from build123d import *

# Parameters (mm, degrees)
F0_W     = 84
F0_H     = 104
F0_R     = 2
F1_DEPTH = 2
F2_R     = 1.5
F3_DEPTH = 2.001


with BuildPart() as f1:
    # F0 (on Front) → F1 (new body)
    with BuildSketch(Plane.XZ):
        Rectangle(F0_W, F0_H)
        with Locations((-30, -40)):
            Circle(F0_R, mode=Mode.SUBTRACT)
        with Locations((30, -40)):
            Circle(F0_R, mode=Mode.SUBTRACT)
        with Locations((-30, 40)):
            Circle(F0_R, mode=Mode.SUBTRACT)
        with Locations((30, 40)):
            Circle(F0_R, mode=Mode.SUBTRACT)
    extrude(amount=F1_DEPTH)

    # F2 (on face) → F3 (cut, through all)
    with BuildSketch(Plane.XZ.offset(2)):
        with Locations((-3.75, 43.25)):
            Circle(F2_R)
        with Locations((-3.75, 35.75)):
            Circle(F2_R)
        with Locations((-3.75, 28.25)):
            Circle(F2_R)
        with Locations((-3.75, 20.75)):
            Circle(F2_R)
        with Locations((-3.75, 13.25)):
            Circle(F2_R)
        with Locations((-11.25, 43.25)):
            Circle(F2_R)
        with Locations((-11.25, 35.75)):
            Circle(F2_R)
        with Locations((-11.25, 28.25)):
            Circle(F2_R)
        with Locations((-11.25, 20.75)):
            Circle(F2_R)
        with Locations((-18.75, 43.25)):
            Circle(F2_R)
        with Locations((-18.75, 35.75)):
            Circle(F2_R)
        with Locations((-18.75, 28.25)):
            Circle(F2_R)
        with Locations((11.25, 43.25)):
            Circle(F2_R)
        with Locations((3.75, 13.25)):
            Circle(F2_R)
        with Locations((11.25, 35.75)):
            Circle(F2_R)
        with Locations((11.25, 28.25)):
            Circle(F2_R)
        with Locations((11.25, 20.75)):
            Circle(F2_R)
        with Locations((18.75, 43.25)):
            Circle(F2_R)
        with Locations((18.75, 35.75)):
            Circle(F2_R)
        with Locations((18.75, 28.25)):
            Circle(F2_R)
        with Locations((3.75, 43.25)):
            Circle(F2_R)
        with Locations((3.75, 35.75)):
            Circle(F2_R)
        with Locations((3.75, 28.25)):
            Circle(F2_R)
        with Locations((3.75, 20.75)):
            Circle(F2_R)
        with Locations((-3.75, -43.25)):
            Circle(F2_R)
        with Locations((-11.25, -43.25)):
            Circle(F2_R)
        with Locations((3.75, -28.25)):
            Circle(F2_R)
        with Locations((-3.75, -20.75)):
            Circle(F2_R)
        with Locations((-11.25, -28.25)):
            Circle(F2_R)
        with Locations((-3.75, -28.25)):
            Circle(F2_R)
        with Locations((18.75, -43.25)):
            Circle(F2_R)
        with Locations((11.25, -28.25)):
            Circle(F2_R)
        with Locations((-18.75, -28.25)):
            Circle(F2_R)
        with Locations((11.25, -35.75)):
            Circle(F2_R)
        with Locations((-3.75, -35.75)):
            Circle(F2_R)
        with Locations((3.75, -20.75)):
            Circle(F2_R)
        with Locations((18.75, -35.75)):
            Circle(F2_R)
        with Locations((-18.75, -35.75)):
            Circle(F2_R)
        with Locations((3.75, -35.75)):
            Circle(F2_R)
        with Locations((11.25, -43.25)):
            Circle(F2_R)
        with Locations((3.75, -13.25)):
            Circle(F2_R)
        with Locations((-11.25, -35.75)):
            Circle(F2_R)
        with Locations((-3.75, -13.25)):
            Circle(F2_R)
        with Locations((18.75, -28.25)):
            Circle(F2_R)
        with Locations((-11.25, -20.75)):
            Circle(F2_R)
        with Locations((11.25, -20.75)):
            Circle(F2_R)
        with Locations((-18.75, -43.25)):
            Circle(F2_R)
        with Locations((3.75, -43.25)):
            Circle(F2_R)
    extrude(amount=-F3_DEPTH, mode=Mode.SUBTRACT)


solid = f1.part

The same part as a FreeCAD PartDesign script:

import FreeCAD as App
import Part
import Sketcher
Q = App.Units.Quantity

doc = App.newDocument("Part")
body = doc.addObject("PartDesign::Body", "Body")

# Sketch on XZ plane
sketch1 = body.newObject("Sketcher::SketchObject", "Sketch")
sketch1.AttachmentSupport = (doc.getObject("XZ_Plane"), [""])
sketch1.MapMode = "FlatFace"
sketch1.addGeometry([
    Part.LineSegment(App.Vector(-42, 52, 0), App.Vector(-42, -52, 0)),  # 0
    Part.LineSegment(App.Vector(-42, -52, 0), App.Vector(42, -52, 0)),  # 1
    Part.LineSegment(App.Vector(42, -52, 0), App.Vector(42, 52, 0)),  # 2
    Part.LineSegment(App.Vector(42, 52, 0), App.Vector(-42, 52, 0)),  # 3
    Part.Circle(App.Vector(-30, -40, 0), App.Vector(0, 0, 1), 2),  # 4
    Part.Circle(App.Vector(30, -40, 0), App.Vector(0, 0, 1), 2),  # 5
    Part.Circle(App.Vector(-30, 40, 0), App.Vector(0, 0, 1), 2),  # 6
    Part.Circle(App.Vector(30, 40, 0), App.Vector(0, 0, 1), 2),  # 7
], False)
sketch1.addConstraint([
    Sketcher.Constraint("Coincident", 0, 2, 1, 1),
    Sketcher.Constraint("Coincident", 1, 2, 2, 1),
    Sketcher.Constraint("Coincident", 2, 2, 3, 1),
    Sketcher.Constraint("Coincident", 3, 2, 0, 1),
    Sketcher.Constraint("Vertical", 0),
    Sketcher.Constraint("Horizontal", 1),
    Sketcher.Constraint("Vertical", 2),
    Sketcher.Constraint("Horizontal", 3),
    Sketcher.Constraint("Equal", 4, 5),
    Sketcher.Constraint("Equal", 5, 6),
    Sketcher.Constraint("Equal", 6, 7),
    Sketcher.Constraint("Symmetric", 5, 3, 6, 3, -1, 1),
    Sketcher.Constraint("Symmetric", 4, 3, 7, 3, -1, 1),
    Sketcher.Constraint("Symmetric", 0, 2, 2, 2, -1, 1),
    Sketcher.Constraint("Symmetric", 4, 3, 5, 3, -2),
    Sketcher.Constraint("Diameter", 4, Q("4 mm")),
    Sketcher.Constraint("DistanceX", 1, 1, 1, 2, Q("84 mm")),
    Sketcher.Constraint("DistanceY", 0, 2, 0, 1, Q("104 mm")),
    Sketcher.Constraint("DistanceX", 4, 3, -1, 1, Q("30 mm")),
    Sketcher.Constraint("DistanceY", 4, 3, -1, 1, Q("40 mm")),
])
pad1 = body.newObject("PartDesign::Pad", "Pad")
pad1.Profile = sketch1
pad1.Length = 2

# Sketch on XZ plane
sketch2 = body.newObject("Sketcher::SketchObject", "Sketch001")
sketch2.AttachmentSupport = (doc.getObject("XZ_Plane"), [""])
sketch2.MapMode = "FlatFace"
sketch2.AttachmentOffset = App.Placement(App.Vector(0, 0, 2), App.Rotation())
sketch2.addGeometry([
    Part.Circle(App.Vector(-3.8, 43.2, 0), App.Vector(0, 0, 1), 1.5),  # 0
    Part.Circle(App.Vector(-3.8, 35.8, 0), App.Vector(0, 0, 1), 1.5),  # 1
    Part.Circle(App.Vector(-3.8, 28.2, 0), App.Vector(0, 0, 1), 1.5),  # 2
    Part.Circle(App.Vector(-3.8, 20.8, 0), App.Vector(0, 0, 1), 1.5),  # 3
    Part.Circle(App.Vector(-3.8, 13.2, 0), App.Vector(0, 0, 1), 1.5),  # 4
    Part.Circle(App.Vector(-11.2, 43.2, 0), App.Vector(0, 0, 1), 1.5),  # 5
    Part.Circle(App.Vector(-11.2, 35.8, 0), App.Vector(0, 0, 1), 1.5),  # 6
    Part.Circle(App.Vector(-11.2, 28.2, 0), App.Vector(0, 0, 1), 1.5),  # 7
    Part.Circle(App.Vector(-11.2, 20.8, 0), App.Vector(0, 0, 1), 1.5),  # 8
    Part.Circle(App.Vector(-18.8, 43.2, 0), App.Vector(0, 0, 1), 1.5),  # 9
    Part.Circle(App.Vector(-18.8, 35.8, 0), App.Vector(0, 0, 1), 1.5),  # 10
    Part.Circle(App.Vector(-18.8, 28.2, 0), App.Vector(0, 0, 1), 1.5),  # 11
    Part.Circle(App.Vector(11.2, 43.2, 0), App.Vector(0, 0, 1), 1.5),  # 12
    Part.Circle(App.Vector(3.8, 13.2, 0), App.Vector(0, 0, 1), 1.5),  # 13
    Part.Circle(App.Vector(11.2, 35.8, 0), App.Vector(0, 0, 1), 1.5),  # 14
    Part.Circle(App.Vector(11.2, 28.2, 0), App.Vector(0, 0, 1), 1.5),  # 15
    Part.Circle(App.Vector(11.2, 20.8, 0), App.Vector(0, 0, 1), 1.5),  # 16
    Part.Circle(App.Vector(18.8, 43.2, 0), App.Vector(0, 0, 1), 1.5),  # 17
    Part.Circle(App.Vector(18.8, 35.8, 0), App.Vector(0, 0, 1), 1.5),  # 18
    Part.Circle(App.Vector(18.8, 28.2, 0), App.Vector(0, 0, 1), 1.5),  # 19
    Part.Circle(App.Vector(3.8, 43.2, 0), App.Vector(0, 0, 1), 1.5),  # 20
    Part.Circle(App.Vector(3.8, 35.8, 0), App.Vector(0, 0, 1), 1.5),  # 21
    Part.Circle(App.Vector(3.8, 28.2, 0), App.Vector(0, 0, 1), 1.5),  # 22
    Part.Circle(App.Vector(3.8, 20.8, 0), App.Vector(0, 0, 1), 1.5),  # 23
    Part.Circle(App.Vector(-3.8, -43.2, 0), App.Vector(0, 0, 1), 1.5),  # 24
    Part.Circle(App.Vector(-11.2, -43.2, 0), App.Vector(0, 0, 1), 1.5),  # 25
    Part.Circle(App.Vector(3.8, -28.2, 0), App.Vector(0, 0, 1), 1.5),  # 26
    Part.Circle(App.Vector(-3.8, -20.8, 0), App.Vector(0, 0, 1), 1.5),  # 27
    Part.Circle(App.Vector(-11.2, -28.2, 0), App.Vector(0, 0, 1), 1.5),  # 28
    Part.Circle(App.Vector(-3.8, -28.2, 0), App.Vector(0, 0, 1), 1.5),  # 29
    Part.Circle(App.Vector(18.8, -43.2, 0), App.Vector(0, 0, 1), 1.5),  # 30
    Part.Circle(App.Vector(11.2, -28.2, 0), App.Vector(0, 0, 1), 1.5),  # 31
    Part.Circle(App.Vector(-18.8, -28.2, 0), App.Vector(0, 0, 1), 1.5),  # 32
    Part.Circle(App.Vector(11.2, -35.8, 0), App.Vector(0, 0, 1), 1.5),  # 33
    Part.Circle(App.Vector(-3.8, -35.8, 0), App.Vector(0, 0, 1), 1.5),  # 34
    Part.Circle(App.Vector(3.8, -20.8, 0), App.Vector(0, 0, 1), 1.5),  # 35
    Part.Circle(App.Vector(18.8, -35.8, 0), App.Vector(0, 0, 1), 1.5),  # 36
    Part.Circle(App.Vector(-18.8, -35.8, 0), App.Vector(0, 0, 1), 1.5),  # 37
    Part.Circle(App.Vector(3.8, -35.8, 0), App.Vector(0, 0, 1), 1.5),  # 38
    Part.Circle(App.Vector(11.2, -43.2, 0), App.Vector(0, 0, 1), 1.5),  # 39
    Part.Circle(App.Vector(3.8, -13.2, 0), App.Vector(0, 0, 1), 1.5),  # 40
    Part.Circle(App.Vector(-11.2, -35.8, 0), App.Vector(0, 0, 1), 1.5),  # 41
    Part.Circle(App.Vector(-3.8, -13.2, 0), App.Vector(0, 0, 1), 1.5),  # 42
    Part.Circle(App.Vector(18.8, -28.2, 0), App.Vector(0, 0, 1), 1.5),  # 43
    Part.Circle(App.Vector(-11.2, -20.8, 0), App.Vector(0, 0, 1), 1.5),  # 44
    Part.Circle(App.Vector(11.2, -20.8, 0), App.Vector(0, 0, 1), 1.5),  # 45
    Part.Circle(App.Vector(-18.8, -43.2, 0), App.Vector(0, 0, 1), 1.5),  # 46
    Part.Circle(App.Vector(3.8, -43.2, 0), App.Vector(0, 0, 1), 1.5),  # 47
], False)
sketch2.addConstraint([
    Sketcher.Constraint("Equal", 0, 1),
    Sketcher.Constraint("Equal", 1, 2),
    Sketcher.Constraint("Equal", 2, 3),
    Sketcher.Constraint("Equal", 3, 4),
    Sketcher.Constraint("Equal", 4, 5),
    Sketcher.Constraint("Equal", 5, 6),
    Sketcher.Constraint("Equal", 6, 7),
    Sketcher.Constraint("Equal", 7, 8),
    Sketcher.Constraint("Equal", 8, 9),
    Sketcher.Constraint("Equal", 9, 10),
    Sketcher.Constraint("Equal", 10, 11),
    Sketcher.Constraint("Equal", 11, 12),
    Sketcher.Constraint("Equal", 12, 13),
    Sketcher.Constraint("Equal", 13, 14),
    Sketcher.Constraint("Equal", 14, 15),
    Sketcher.Constraint("Equal", 15, 16),
    Sketcher.Constraint("Equal", 16, 17),
    Sketcher.Constraint("Equal", 17, 18),
    Sketcher.Constraint("Equal", 18, 19),
    Sketcher.Constraint("Equal", 19, 20),
    Sketcher.Constraint("Equal", 20, 21),
    Sketcher.Constraint("Equal", 21, 22),
    Sketcher.Constraint("Equal", 22, 23),
    Sketcher.Constraint("Equal", 23, 24),
    Sketcher.Constraint("Equal", 24, 25),
    Sketcher.Constraint("Equal", 25, 26),
    Sketcher.Constraint("Equal", 26, 27),
    Sketcher.Constraint("Equal", 27, 28),
    Sketcher.Constraint("Equal", 28, 29),
    Sketcher.Constraint("Equal", 29, 30),
    Sketcher.Constraint("Equal", 30, 31),
    Sketcher.Constraint("Equal", 31, 32),
    Sketcher.Constraint("Equal", 32, 33),
    Sketcher.Constraint("Equal", 33, 34),
    Sketcher.Constraint("Equal", 34, 35),
    Sketcher.Constraint("Equal", 35, 36),
    Sketcher.Constraint("Equal", 36, 37),
    Sketcher.Constraint("Equal", 37, 38),
    Sketcher.Constraint("Equal", 38, 39),
    Sketcher.Constraint("Equal", 39, 40),
    Sketcher.Constraint("Equal", 40, 41),
    Sketcher.Constraint("Equal", 41, 42),
    Sketcher.Constraint("Equal", 42, 43),
    Sketcher.Constraint("Equal", 43, 44),
    Sketcher.Constraint("Equal", 44, 45),
    Sketcher.Constraint("Equal", 45, 46),
    Sketcher.Constraint("Equal", 46, 47),
    Sketcher.Constraint("Symmetric", 20, 3, 24, 3, -1, 1),
    Sketcher.Constraint("Symmetric", 12, 3, 25, 3, -1, 1),
    Sketcher.Constraint("Symmetric", 2, 3, 26, 3, -1, 1),
    Sketcher.Constraint("Symmetric", 23, 3, 27, 3, -1, 1),
    Sketcher.Constraint("Symmetric", 15, 3, 28, 3, -1, 1),
    Sketcher.Constraint("Symmetric", 22, 3, 29, 3, -1, 1),
    Sketcher.Constraint("Symmetric", 9, 3, 30, 3, -1, 1),
    Sketcher.Constraint("Symmetric", 7, 3, 31, 3, -1, 1),
    Sketcher.Constraint("Symmetric", 19, 3, 32, 3, -1, 1),
    Sketcher.Constraint("Symmetric", 6, 3, 33, 3, -1, 1),
    Sketcher.Constraint("Symmetric", 21, 3, 34, 3, -1, 1),
    Sketcher.Constraint("Symmetric", 3, 3, 35, 3, -1, 1),
    Sketcher.Constraint("Symmetric", 10, 3, 36, 3, -1, 1),
    Sketcher.Constraint("Symmetric", 18, 3, 37, 3, -1, 1),
    Sketcher.Constraint("Symmetric", 1, 3, 38, 3, -1, 1),
    Sketcher.Constraint("Symmetric", 5, 3, 39, 3, -1, 1),
    Sketcher.Constraint("Symmetric", 4, 3, 40, 3, -1, 1),
    Sketcher.Constraint("Symmetric", 14, 3, 41, 3, -1, 1),
    Sketcher.Constraint("Symmetric", 13, 3, 42, 3, -1, 1),
    Sketcher.Constraint("Symmetric", 11, 3, 43, 3, -1, 1),
    Sketcher.Constraint("Symmetric", 16, 3, 44, 3, -1, 1),
    Sketcher.Constraint("Symmetric", 8, 3, 45, 3, -1, 1),
    Sketcher.Constraint("Symmetric", 17, 3, 46, 3, -1, 1),
    Sketcher.Constraint("Symmetric", 0, 3, 47, 3, -1, 1),
    Sketcher.Constraint("Symmetric", 5, 3, 12, 3, -2),
    Sketcher.Constraint("Symmetric", 4, 3, 13, 3, -2),
    Sketcher.Constraint("Symmetric", 6, 3, 14, 3, -2),
    Sketcher.Constraint("Symmetric", 7, 3, 15, 3, -2),
    Sketcher.Constraint("Symmetric", 8, 3, 16, 3, -2),
    Sketcher.Constraint("Symmetric", 9, 3, 17, 3, -2),
    Sketcher.Constraint("Symmetric", 10, 3, 18, 3, -2),
    Sketcher.Constraint("Symmetric", 11, 3, 19, 3, -2),
    Sketcher.Constraint("Symmetric", 0, 3, 20, 3, -2),
    Sketcher.Constraint("Symmetric", 1, 3, 21, 3, -2),
    Sketcher.Constraint("Symmetric", 2, 3, 22, 3, -2),
    Sketcher.Constraint("Symmetric", 3, 3, 23, 3, -2),
    Sketcher.Constraint("Horizontal", 0, 3, 5, 3),
    Sketcher.Constraint("Horizontal", 1, 3, 6, 3),
    Sketcher.Constraint("Horizontal", 2, 3, 7, 3),
    Sketcher.Constraint("Horizontal", 3, 3, 8, 3),
    Sketcher.Constraint("Horizontal", 5, 3, 9, 3),
    Sketcher.Constraint("Horizontal", 6, 3, 10, 3),
    Sketcher.Constraint("Horizontal", 7, 3, 11, 3),
    Sketcher.Constraint("Vertical", 0, 3, 1, 3),
    Sketcher.Constraint("Vertical", 1, 3, 2, 3),
    Sketcher.Constraint("Vertical", 2, 3, 3, 3),
    Sketcher.Constraint("Vertical", 3, 3, 4, 3),
    Sketcher.Constraint("Vertical", 5, 3, 6, 3),
    Sketcher.Constraint("Vertical", 6, 3, 7, 3),
    Sketcher.Constraint("Vertical", 7, 3, 8, 3),
    Sketcher.Constraint("Vertical", 9, 3, 10, 3),
    Sketcher.Constraint("Vertical", 10, 3, 11, 3),
    Sketcher.Constraint("Diameter", 0, Q("3 mm")),
    Sketcher.Constraint("DistanceY", 2, 3, 0, 3, Q("15 mm")),
    Sketcher.Constraint("DistanceY", 3, 3, 1, 3, Q("15 mm")),
    Sketcher.Constraint("DistanceY", 4, 3, 2, 3, Q("15 mm")),
    Sketcher.Constraint("DistanceX", 9, 3, 0, 3, Q("15 mm")),
    Sketcher.Constraint("DistanceX", 0, 3, 12, 3, Q("15 mm")),
    Sketcher.Constraint("DistanceY", 24, 3, 3, 3, Q("64 mm")),
    Sketcher.Constraint("DistanceY", 1, 3, 0, 3, Q("7.5 mm")),
    Sketcher.Constraint("DistanceX", 5, 3, 0, 3, Q("7.5 mm")),
])
pocket1 = body.newObject("PartDesign::Pocket", "Pocket")
pocket1.Profile = sketch2
pocket1.Type = "ThroughAll"

doc.recompute()
